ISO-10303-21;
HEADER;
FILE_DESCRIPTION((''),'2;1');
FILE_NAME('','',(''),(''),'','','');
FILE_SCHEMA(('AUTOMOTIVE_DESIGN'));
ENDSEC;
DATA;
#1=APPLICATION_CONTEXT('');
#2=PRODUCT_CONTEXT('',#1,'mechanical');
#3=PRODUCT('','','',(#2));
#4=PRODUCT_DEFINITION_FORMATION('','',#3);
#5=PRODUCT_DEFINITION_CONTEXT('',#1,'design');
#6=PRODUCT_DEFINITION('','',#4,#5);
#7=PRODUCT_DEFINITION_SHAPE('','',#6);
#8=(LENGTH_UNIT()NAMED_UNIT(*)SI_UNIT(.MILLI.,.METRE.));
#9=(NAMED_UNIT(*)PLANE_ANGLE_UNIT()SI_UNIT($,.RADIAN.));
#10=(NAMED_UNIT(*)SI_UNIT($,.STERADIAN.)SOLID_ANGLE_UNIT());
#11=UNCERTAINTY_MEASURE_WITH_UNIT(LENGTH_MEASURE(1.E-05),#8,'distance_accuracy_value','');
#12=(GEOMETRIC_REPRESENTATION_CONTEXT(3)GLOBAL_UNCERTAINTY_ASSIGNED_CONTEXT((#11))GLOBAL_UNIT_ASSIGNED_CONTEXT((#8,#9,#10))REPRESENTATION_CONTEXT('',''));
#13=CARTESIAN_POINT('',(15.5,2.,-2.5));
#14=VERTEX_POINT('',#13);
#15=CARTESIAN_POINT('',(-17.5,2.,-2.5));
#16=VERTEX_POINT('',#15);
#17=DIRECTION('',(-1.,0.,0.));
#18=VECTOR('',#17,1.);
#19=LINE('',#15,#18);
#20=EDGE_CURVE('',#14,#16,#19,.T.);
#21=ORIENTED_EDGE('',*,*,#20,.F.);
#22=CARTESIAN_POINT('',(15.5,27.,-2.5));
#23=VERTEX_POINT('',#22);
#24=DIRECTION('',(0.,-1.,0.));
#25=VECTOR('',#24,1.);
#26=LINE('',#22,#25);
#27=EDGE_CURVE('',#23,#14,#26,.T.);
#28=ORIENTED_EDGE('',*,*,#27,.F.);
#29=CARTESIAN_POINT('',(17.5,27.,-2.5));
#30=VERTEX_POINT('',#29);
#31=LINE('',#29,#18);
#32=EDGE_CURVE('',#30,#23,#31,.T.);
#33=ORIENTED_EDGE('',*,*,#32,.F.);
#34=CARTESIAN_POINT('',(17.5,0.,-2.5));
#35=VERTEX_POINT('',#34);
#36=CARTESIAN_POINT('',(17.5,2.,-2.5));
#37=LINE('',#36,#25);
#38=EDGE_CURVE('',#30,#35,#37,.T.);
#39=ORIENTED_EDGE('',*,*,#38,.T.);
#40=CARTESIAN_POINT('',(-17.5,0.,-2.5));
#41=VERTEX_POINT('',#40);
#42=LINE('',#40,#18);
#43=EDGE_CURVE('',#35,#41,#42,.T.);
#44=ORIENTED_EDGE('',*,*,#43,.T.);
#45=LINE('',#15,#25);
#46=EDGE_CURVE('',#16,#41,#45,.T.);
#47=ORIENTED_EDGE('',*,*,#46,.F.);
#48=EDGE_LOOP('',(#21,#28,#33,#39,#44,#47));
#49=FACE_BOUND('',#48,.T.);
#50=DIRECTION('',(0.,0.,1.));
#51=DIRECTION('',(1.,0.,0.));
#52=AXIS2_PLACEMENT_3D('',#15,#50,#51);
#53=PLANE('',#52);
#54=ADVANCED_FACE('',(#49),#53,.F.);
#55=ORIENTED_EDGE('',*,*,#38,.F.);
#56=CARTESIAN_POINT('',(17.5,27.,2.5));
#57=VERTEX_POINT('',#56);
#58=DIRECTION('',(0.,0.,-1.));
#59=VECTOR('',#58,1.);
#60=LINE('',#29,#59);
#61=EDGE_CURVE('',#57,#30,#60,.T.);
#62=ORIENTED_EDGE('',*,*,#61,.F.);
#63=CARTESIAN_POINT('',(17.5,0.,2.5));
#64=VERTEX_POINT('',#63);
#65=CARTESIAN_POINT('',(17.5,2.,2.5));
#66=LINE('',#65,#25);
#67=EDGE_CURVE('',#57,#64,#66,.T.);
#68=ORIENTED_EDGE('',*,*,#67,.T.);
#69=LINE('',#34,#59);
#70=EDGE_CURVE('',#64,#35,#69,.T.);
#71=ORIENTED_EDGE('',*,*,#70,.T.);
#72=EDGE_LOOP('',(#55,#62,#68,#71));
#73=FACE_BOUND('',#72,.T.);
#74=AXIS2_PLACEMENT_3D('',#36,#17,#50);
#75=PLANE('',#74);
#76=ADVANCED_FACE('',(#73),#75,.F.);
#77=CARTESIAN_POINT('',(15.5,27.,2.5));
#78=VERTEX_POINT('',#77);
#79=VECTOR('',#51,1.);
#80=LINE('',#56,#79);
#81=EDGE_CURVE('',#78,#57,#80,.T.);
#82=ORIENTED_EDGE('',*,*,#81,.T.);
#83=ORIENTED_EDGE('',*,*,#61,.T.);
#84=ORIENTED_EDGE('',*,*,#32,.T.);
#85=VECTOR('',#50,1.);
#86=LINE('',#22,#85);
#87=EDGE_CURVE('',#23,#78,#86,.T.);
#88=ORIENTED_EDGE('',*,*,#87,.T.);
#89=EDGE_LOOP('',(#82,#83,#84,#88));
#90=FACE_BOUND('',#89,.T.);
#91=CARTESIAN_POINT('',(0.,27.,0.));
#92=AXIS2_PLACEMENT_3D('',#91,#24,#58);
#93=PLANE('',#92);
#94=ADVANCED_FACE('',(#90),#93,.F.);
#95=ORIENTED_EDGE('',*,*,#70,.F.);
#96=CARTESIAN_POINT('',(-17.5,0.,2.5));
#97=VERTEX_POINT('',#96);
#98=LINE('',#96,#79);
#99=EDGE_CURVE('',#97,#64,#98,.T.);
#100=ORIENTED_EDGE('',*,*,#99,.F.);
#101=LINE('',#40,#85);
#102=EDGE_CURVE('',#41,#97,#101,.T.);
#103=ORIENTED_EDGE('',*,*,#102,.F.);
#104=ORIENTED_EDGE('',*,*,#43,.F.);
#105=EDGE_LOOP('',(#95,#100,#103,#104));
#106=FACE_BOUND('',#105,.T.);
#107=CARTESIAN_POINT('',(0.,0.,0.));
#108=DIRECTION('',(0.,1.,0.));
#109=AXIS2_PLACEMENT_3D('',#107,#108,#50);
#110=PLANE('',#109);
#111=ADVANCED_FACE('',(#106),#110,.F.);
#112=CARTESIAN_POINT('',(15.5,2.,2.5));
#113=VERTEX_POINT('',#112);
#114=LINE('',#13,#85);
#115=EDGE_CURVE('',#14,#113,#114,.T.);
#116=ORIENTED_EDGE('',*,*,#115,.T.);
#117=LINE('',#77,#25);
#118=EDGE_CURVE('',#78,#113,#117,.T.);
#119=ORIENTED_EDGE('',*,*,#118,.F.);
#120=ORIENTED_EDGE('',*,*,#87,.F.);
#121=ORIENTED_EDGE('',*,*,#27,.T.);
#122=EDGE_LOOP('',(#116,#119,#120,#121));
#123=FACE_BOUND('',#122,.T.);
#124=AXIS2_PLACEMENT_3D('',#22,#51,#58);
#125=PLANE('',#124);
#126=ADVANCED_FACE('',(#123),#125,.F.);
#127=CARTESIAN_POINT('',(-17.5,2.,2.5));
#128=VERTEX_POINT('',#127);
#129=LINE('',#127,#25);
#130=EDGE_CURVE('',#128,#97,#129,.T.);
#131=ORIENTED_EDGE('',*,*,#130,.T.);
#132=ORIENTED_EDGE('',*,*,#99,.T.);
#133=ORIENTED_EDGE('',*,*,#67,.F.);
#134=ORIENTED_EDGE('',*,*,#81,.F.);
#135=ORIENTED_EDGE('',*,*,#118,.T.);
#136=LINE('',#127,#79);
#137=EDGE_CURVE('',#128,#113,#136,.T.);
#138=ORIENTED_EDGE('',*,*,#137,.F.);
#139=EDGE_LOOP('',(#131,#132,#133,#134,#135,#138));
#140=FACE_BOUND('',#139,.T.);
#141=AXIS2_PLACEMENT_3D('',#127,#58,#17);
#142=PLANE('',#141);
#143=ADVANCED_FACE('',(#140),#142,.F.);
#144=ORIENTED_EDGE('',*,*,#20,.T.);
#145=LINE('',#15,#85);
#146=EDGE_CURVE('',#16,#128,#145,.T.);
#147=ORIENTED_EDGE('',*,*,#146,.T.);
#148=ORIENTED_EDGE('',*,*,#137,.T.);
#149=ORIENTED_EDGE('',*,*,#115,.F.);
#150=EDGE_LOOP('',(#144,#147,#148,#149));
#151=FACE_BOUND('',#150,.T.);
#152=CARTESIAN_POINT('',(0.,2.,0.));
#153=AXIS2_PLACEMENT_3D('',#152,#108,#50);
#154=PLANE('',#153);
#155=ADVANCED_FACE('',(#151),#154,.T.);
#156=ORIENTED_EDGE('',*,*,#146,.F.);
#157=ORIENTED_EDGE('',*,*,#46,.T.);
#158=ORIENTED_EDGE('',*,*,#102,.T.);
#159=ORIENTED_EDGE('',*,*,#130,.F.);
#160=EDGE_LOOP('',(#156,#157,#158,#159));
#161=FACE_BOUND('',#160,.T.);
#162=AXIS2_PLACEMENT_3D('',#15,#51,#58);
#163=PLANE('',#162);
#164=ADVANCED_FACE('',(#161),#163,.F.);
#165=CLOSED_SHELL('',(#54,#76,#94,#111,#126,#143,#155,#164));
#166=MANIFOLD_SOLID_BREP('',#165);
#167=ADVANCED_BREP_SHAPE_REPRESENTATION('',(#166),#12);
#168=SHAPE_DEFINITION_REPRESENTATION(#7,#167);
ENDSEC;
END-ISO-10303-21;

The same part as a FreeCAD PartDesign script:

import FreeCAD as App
import Part
import Sketcher

V = App.Vector

doc = App.newDocument("Part")
body = doc.addObject("PartDesign::Body", "Body")

sketch1 = body.newObject("Sketcher::SketchObject", "Sketch")
sketch1.AttachmentSupport = (doc.getObject("XZ_Plane"), [""])
sketch1.MapMode = "FlatFace"
sketch1.addGeometry(Part.LineSegment(V(-18, -2, 0), V(-18, 2, 0)), False)
sketch1.addGeometry(Part.LineSegment(V(-18, 2, 0), V(18, 2, 0)), False)
sketch1.addGeometry(Part.LineSegment(V(18, 2, 0), V(18, -2, 0)), False)
sketch1.addGeometry(Part.LineSegment(V(18, -2, 0), V(-18, -2, 0)), False)
sketch1.addConstraint(Sketcher.Constraint("Coincident", 0, 2, 1, 1))
sketch1.addConstraint(Sketcher.Constraint("Coincident", 1, 2, 2, 1))
sketch1.addConstraint(Sketcher.Constraint("Coincident", 2, 2, 3, 1))
sketch1.addConstraint(Sketcher.Constraint("Coincident", 3, 2, 0, 1))
sketch1.addConstraint(Sketcher.Constraint("Vertical", 0))
sketch1.addConstraint(Sketcher.Constraint("Horizontal", 1))
sketch1.addConstraint(Sketcher.Constraint("Vertical", 2))
sketch1.addConstraint(Sketcher.Constraint("Horizontal", 3))
sketch1.addConstraint(Sketcher.Constraint("Symmetric", 0, 2, 2, 2, -1, 1))
sketch1.addConstraint(Sketcher.Constraint("DistanceX", 1, 1, 1, 2, 35.0))
sketch1.addConstraint(Sketcher.Constraint("DistanceY", 0, 1, 0, 2, 5.0))
pad1 = body.newObject("PartDesign::Pad", "Pad")
pad1.Profile = sketch1
pad1.Length = 2
pad1.Reversed = True

sketch2 = body.newObject("Sketcher::SketchObject", "Sketch001")
sketch2.AttachmentSupport = (doc.getObject("XZ_Plane"), [""])
sketch2.MapMode = "FlatFace"
sketch2.AttachmentOffset = App.Placement(V(0, 0, -2), App.Rotation())
sketch2.addGeometry(Part.LineSegment(V(15.5, -2.5, 0), V(15.5, 2.5, 0)), False)
sketch2.addGeometry(Part.LineSegment(V(15.5, 2.5, 0), V(17.5, 2.5, 0)), False)
sketch2.addGeometry(Part.LineSegment(V(17.5, 2.5, 0), V(17.5, -2.5, 0)), False)
sketch2.addGeometry(Part.LineSegment(V(17.5, -2.5, 0), V(15.5, -2.5, 0)), False)
sketch2.addConstraint(Sketcher.Constraint("Coincident", 0, 2, 1, 1))
sketch2.addConstraint(Sketcher.Constraint("Coincident", 1, 2, 2, 1))
sketch2.addConstraint(Sketcher.Constraint("Coincident", 2, 2, 3, 1))
sketch2.addConstraint(Sketcher.Constraint("Coincident", 3, 2, 0, 1))
sketch2.addConstraint(Sketcher.Constraint("Vertical", 0))
sketch2.addConstraint(Sketcher.Constraint("Horizontal", 1))
sketch2.addConstraint(Sketcher.Constraint("Vertical", 2))
sketch2.addConstraint(Sketcher.Constraint("Horizontal", 3))
sketch2.addConstraint(Sketcher.Constraint("DistanceX", 1, 1, 1, 2, 2.0))
sketch2.addConstraint(Sketcher.Constraint("DistanceY", 0, 1, 0, 2, 5.0))
sketch2.addConstraint(Sketcher.Constraint("DistanceX", -1, 1, 0, 2, 15.5))
sketch2.addConstraint(Sketcher.Constraint("DistanceY", -1, 1, 0, 2, 2.5))
pad2 = body.newObject("PartDesign::Pad", "Pad001")
pad2.Profile = sketch2
pad2.Length = 25
pad2.Reversed = True

doc.recompute()
